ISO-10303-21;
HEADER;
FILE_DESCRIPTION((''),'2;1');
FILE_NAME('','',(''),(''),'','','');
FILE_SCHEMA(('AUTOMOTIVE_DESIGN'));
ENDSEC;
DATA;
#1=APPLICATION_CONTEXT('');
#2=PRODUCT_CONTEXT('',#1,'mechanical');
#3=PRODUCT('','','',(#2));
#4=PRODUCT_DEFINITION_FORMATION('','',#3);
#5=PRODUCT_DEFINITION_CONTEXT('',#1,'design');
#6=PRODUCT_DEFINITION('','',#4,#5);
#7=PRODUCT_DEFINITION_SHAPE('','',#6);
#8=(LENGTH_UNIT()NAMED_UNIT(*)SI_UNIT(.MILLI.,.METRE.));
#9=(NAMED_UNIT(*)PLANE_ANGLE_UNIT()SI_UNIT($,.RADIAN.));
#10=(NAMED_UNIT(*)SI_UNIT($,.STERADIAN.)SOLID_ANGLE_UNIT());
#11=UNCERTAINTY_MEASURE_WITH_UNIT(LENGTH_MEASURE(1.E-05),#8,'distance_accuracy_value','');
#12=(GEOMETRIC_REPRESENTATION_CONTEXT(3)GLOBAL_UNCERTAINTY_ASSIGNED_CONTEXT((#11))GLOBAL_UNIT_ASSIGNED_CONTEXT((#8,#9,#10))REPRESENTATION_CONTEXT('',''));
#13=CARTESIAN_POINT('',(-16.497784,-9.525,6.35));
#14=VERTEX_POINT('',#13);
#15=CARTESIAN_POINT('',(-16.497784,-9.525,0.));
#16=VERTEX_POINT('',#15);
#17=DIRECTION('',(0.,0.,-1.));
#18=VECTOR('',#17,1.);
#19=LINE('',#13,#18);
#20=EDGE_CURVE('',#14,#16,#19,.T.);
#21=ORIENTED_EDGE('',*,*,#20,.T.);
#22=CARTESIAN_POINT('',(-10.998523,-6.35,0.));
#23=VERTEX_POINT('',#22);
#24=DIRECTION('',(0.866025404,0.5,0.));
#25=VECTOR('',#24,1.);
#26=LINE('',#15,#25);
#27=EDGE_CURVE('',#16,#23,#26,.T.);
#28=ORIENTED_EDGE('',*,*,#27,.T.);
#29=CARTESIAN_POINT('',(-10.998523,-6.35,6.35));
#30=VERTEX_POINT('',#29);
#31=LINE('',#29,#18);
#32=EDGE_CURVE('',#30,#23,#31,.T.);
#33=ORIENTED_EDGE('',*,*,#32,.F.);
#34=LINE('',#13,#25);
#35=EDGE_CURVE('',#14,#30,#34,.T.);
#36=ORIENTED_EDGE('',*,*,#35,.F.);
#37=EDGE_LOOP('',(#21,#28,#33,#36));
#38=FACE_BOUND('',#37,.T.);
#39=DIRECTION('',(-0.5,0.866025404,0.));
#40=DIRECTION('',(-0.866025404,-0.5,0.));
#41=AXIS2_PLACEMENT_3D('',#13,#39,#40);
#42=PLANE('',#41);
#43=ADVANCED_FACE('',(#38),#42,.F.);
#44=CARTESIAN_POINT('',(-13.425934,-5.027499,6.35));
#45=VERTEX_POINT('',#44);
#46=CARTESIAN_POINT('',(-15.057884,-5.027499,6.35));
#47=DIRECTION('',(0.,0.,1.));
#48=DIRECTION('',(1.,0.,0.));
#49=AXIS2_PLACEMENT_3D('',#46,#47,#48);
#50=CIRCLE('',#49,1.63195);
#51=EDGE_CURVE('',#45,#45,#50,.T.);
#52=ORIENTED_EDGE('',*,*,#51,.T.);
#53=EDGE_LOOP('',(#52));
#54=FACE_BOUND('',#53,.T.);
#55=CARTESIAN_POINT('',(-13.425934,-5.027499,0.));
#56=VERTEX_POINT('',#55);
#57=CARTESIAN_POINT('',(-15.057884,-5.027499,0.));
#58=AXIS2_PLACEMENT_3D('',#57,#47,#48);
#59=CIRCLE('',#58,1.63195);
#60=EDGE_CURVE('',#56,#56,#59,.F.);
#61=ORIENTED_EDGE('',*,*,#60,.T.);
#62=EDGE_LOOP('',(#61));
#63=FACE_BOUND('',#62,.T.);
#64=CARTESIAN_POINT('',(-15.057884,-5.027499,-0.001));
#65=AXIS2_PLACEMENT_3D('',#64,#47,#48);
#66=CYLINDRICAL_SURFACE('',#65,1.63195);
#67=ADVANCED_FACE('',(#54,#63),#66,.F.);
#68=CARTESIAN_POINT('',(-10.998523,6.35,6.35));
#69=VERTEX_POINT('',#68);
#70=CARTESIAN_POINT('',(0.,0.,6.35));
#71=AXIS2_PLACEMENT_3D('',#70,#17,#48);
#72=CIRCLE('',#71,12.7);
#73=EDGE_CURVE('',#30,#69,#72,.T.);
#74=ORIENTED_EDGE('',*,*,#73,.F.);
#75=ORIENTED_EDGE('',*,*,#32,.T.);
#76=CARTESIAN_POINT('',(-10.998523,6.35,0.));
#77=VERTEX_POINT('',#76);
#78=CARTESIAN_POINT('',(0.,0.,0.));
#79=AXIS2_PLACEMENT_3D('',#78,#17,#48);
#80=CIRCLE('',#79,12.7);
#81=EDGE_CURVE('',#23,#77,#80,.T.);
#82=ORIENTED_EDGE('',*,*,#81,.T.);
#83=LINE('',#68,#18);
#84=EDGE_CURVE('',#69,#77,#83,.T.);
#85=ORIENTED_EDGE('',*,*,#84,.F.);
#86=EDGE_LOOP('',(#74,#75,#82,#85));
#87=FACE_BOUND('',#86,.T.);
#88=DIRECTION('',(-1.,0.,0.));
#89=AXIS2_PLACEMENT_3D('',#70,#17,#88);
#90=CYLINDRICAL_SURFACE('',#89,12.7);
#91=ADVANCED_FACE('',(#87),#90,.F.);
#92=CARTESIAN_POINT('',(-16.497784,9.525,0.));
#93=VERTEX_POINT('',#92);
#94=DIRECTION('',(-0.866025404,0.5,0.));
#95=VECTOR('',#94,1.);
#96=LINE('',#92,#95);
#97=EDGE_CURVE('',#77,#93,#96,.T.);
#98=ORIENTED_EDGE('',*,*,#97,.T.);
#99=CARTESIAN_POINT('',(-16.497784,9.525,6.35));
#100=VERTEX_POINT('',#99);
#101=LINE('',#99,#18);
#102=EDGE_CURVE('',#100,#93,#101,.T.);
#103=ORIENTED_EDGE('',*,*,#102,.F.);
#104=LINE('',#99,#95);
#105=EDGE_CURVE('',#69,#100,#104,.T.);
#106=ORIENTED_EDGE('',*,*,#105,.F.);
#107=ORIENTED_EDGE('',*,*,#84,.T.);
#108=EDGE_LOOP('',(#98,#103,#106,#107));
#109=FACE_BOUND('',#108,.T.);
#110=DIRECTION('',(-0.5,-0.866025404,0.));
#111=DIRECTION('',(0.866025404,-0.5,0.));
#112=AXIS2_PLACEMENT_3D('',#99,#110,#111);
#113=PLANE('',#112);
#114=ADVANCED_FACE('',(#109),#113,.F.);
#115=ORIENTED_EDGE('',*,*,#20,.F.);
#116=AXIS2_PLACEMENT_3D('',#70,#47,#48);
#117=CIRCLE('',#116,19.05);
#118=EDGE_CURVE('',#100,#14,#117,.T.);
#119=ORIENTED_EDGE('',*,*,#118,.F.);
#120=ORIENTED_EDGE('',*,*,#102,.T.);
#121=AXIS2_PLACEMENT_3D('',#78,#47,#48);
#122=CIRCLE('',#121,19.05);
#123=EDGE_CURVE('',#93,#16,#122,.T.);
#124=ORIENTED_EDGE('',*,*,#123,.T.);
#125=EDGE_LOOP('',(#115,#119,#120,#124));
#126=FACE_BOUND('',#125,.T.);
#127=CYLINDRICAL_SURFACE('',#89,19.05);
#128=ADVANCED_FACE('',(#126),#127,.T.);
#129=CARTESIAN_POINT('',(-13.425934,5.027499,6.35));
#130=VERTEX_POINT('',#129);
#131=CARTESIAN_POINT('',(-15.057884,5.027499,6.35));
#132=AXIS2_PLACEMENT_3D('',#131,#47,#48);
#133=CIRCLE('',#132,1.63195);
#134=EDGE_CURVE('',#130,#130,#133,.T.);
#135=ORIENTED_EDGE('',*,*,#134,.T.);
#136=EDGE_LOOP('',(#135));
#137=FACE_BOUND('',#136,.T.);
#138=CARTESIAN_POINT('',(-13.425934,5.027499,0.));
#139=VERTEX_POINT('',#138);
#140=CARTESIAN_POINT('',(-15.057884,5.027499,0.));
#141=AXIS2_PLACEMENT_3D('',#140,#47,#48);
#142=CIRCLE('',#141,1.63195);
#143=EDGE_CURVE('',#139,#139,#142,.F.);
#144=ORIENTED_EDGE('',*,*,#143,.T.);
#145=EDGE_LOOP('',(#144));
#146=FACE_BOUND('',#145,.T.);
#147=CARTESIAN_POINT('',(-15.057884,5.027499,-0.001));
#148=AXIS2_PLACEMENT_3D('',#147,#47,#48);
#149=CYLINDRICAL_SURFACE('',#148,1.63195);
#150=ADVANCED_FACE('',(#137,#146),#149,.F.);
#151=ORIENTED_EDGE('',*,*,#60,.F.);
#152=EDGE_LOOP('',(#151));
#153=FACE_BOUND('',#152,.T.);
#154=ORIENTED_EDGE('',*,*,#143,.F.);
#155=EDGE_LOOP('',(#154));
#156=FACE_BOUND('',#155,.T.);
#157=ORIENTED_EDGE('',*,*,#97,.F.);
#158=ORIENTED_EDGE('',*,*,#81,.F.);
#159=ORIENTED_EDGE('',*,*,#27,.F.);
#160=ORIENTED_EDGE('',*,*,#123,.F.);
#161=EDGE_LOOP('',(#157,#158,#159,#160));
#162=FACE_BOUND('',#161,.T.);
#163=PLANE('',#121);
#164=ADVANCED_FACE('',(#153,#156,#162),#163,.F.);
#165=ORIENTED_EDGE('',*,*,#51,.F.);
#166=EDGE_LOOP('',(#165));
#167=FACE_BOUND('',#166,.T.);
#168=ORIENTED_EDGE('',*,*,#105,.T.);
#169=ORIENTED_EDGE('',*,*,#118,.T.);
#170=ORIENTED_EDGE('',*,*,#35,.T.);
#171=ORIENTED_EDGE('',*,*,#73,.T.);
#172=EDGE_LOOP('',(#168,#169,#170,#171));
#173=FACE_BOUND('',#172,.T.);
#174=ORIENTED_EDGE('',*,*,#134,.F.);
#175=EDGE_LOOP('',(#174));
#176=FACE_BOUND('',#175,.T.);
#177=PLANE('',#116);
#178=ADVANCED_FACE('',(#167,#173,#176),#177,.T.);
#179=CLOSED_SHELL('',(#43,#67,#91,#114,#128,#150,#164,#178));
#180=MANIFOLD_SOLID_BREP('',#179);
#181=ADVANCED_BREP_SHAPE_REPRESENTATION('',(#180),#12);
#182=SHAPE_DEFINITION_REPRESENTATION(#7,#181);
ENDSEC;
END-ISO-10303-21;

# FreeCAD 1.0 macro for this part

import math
import FreeCAD as App
import Part
import Sketcher
from FreeCAD import Vector
Q = App.Units.Quantity

doc = App.newDocument("Part")
body = doc.addObject("PartDesign::Body", "Body")

sketch1 = body.newObject("Sketcher::SketchObject", "Sketch")
sketch1.AttachmentSupport = (doc.getObject("XY_Plane"), [""])
sketch1.MapMode = "FlatFace"
sketch1.addGeometry(Part.LineSegment(Vector(-16, -10, 0), Vector(-11, -6, 0)), False)
sketch1.addGeometry(Part.ArcOfCircle(Part.Circle(Vector(0, 0, 0), Vector(0, 0, 1), 13), math.radians(150), math.radians(210)), False)
sketch1.addGeometry(Part.LineSegment(Vector(-11, 6, 0), Vector(-16, 10, 0)), False)
sketch1.addGeometry(Part.ArcOfCircle(Part.Circle(Vector(0, 0, 0), Vector(0, 0, 1), 19), math.radians(150), math.radians(210)), False)
sketch1.addConstraint(Sketcher.Constraint("Coincident", 0, 2, 1, 2))
sketch1.addConstraint(Sketcher.Constraint("Coincident", 1, 1, 2, 1))
sketch1.addConstraint(Sketcher.Constraint("Coincident", 2, 2, 3, 1))
sketch1.addConstraint(Sketcher.Constraint("Coincident", 3, 2, 0, 1))
sketch1.addConstraint(Sketcher.Constraint("Coincident", 1, 3, -1, 1))
sketch1.addConstraint(Sketcher.Constraint("Coincident", 3, 3, -1, 1))
sketch1.addConstraint(Sketcher.Constraint("Vertical", 0, 2, 1, 1))
sketch1.addConstraint(Sketcher.Constraint("Vertical", 2, 2, 3, 2))
sketch1.addConstraint(Sketcher.Constraint("Radius", 1, Q("0.5 in")))
sketch1.addConstraint(Sketcher.Constraint("Radius", 3, Q("0.75 in")))
sketch1.addConstraint(Sketcher.Constraint("Angle", 0, Q("30 deg")))
sketch1.addConstraint(Sketcher.Constraint("DistanceY", 0, 2, 1, 1, Q("0.5 in")))
pad1 = body.newObject("PartDesign::Pad", "Pad")
pad1.Profile = sketch1
pad1.Length = Q("0.25 in")

sketch2 = body.newObject("Sketcher::SketchObject", "Sketch001")
sketch2.AttachmentSupport = (doc.getObject("XY_Plane"), [""])
sketch2.MapMode = "FlatFace"
sketch2.AttachmentOffset = App.Placement(Vector(0, 0, 0.25 * 25.4), App.Rotation())
sketch2.addGeometry(Part.Circle(Vector(-15.1, 5, 0), Vector(0, 0, 1), 1.6), False)
sketch2.addConstraint(Sketcher.Constraint("Diameter", 0, Q("0.1285 in")))
sketch2.addConstraint(Sketcher.Constraint("DistanceY", -1, 1, 0, 3, Q("5.027499 mm")))
sketch2.addConstraint(Sketcher.Constraint("DistanceX", 0, 3, -1, 1, Q("15.057884 mm")))
pocket1 = body.newObject("PartDesign::Pocket", "Pocket")
pocket1.Profile = sketch2
pocket1.Type = "UpToFirst"

sketch3 = body.newObject("Sketcher::SketchObject", "Sketch002")
sketch3.AttachmentSupport = (doc.getObject("XY_Plane"), [""])
sketch3.MapMode = "FlatFace"
sketch3.AttachmentOffset = App.Placement(Vector(0, 0, 0.25 * 25.4), App.Rotation())
sketch3.addGeometry(Part.Circle(Vector(-15.1, -5, 0), Vector(0, 0, 1), 1.6), False)
sketch3.addConstraint(Sketcher.Constraint("Diameter", 0, Q("0.1285 in")))
sketch3.addConstraint(Sketcher.Constraint("DistanceY", 0, 3, -1, 1, Q("5.027499 mm")))
sketch3.addConstraint(Sketcher.Constraint("DistanceX", 0, 3, -1, 1, Q("15.057884 mm")))
pocket2 = body.newObject("PartDesign::Pocket", "Pocket001")
pocket2.Profile = sketch3
pocket2.Type = "UpToFirst"

doc.recompute()
